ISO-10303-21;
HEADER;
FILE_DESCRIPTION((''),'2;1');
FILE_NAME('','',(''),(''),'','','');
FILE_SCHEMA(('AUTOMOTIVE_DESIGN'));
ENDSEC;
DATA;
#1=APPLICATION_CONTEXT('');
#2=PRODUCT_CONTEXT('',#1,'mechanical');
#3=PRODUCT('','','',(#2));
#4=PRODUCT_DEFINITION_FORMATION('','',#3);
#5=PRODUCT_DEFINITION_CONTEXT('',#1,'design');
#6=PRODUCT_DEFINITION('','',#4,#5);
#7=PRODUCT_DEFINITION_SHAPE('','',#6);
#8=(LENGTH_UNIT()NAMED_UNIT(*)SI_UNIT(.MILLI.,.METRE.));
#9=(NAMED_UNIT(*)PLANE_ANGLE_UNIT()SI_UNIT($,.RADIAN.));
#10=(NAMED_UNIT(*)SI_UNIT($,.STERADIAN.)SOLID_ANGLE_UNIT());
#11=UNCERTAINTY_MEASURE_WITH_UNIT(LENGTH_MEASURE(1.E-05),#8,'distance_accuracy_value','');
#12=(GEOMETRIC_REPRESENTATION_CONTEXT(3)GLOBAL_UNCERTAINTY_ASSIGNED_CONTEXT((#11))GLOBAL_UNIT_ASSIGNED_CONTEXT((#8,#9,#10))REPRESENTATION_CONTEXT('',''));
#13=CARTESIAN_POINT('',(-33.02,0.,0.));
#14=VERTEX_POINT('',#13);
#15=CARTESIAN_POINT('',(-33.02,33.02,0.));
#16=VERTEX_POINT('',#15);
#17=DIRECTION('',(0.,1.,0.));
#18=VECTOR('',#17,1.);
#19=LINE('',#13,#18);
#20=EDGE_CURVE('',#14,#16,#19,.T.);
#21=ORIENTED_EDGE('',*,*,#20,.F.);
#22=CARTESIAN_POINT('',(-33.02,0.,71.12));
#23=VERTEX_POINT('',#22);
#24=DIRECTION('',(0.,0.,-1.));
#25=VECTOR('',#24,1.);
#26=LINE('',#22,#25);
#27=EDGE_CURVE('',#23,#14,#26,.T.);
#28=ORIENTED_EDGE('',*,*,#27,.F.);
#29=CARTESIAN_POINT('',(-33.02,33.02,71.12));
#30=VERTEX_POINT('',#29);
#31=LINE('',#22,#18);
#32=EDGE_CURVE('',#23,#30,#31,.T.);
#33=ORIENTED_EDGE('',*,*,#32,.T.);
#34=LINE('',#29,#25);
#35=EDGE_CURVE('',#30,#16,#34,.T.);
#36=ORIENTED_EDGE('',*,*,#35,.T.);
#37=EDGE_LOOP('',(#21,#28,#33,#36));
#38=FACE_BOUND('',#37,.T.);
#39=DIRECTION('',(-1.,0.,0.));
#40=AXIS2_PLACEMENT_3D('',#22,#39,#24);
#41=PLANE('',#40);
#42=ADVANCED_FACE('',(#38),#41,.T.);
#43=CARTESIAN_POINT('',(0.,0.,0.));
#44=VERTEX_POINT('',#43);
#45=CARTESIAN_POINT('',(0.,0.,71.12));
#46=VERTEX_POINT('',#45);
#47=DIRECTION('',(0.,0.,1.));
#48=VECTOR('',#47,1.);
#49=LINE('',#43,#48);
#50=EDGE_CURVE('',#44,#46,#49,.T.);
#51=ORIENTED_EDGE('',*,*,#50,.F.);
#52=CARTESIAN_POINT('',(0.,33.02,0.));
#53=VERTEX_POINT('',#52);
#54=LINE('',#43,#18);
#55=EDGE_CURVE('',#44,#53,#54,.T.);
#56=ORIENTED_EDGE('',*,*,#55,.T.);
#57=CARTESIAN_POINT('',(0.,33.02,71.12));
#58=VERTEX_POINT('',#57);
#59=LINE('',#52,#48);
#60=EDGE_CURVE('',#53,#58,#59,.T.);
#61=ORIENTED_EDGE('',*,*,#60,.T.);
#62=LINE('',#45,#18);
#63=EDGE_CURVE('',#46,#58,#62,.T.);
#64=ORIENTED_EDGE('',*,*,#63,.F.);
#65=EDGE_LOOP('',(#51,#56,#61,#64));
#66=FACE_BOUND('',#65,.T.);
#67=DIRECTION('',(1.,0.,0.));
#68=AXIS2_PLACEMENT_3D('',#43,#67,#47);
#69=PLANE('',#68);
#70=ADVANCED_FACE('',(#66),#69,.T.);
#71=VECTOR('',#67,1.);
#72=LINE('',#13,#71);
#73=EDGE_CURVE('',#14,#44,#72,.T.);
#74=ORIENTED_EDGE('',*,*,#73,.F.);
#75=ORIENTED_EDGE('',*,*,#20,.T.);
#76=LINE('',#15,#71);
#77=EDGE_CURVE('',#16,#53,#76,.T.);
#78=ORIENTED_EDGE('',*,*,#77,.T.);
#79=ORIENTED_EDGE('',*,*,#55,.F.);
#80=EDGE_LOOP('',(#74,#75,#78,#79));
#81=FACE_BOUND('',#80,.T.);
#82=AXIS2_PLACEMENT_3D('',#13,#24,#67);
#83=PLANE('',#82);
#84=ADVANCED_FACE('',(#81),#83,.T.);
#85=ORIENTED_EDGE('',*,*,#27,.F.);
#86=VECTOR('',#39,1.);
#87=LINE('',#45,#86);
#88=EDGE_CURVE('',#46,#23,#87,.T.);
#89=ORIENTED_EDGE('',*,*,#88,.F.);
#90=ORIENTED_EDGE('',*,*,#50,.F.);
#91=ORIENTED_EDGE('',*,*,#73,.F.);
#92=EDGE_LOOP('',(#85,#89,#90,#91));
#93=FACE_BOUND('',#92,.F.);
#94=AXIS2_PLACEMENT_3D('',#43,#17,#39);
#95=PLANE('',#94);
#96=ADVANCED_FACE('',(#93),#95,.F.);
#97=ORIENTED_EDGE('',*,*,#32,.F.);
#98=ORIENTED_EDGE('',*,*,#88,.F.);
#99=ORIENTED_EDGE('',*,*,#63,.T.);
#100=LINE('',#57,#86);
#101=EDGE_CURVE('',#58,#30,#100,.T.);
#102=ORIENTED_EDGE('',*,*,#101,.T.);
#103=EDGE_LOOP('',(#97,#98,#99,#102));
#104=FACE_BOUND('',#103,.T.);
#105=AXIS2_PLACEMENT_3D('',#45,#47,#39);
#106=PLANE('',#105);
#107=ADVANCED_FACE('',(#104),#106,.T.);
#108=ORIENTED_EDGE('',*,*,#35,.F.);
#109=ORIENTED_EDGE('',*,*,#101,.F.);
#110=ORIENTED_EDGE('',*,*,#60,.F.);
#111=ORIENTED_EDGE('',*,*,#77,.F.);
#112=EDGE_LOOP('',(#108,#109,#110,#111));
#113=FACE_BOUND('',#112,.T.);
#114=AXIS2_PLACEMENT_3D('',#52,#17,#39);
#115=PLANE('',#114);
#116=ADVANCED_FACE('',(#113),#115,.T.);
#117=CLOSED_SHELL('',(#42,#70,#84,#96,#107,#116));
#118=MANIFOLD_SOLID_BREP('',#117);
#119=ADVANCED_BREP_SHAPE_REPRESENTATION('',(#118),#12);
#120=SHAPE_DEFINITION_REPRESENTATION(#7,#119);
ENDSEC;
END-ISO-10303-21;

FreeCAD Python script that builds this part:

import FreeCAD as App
import Part
import Sketcher
Q = App.Units.Quantity

doc = App.newDocument("Part")
params = doc.addObject("Spreadsheet::Sheet", "Params")
for row, (alias, value) in enumerate([
    ("sketch1_width", "1.3 in"),
    ("sketch1_height", "2.8 in"),
    ("pad1_length", "1.3 in"),
], start=1):
    params.set(f"A{row}", alias)
    params.set(f"B{row}", "=" + value)
    params.setAlias(f"B{row}", alias)

body = doc.addObject("PartDesign::Body", "Body")

# Sketch on XZ plane
sketch1 = body.newObject("Sketcher::SketchObject", "Sketch")
sketch1.AttachmentSupport = (doc.getObject("XZ_Plane"), [""])
sketch1.MapMode = "FlatFace"
sketch1.addGeometry([
    Part.LineSegment(App.Vector(0, 71, 0), App.Vector(0, 0, 0)),
    Part.LineSegment(App.Vector(0, 0, 0), App.Vector(-33, 0, 0)),
    Part.LineSegment(App.Vector(-33, 0, 0), App.Vector(-33, 71, 0)),
    Part.LineSegment(App.Vector(-33, 71, 0), App.Vector(0, 71, 0)),
], False)
sketch1.addConstraint([
    Sketcher.Constraint("Coincident", 0, 2, 1, 1),
    Sketcher.Constraint("Coincident", 1, 2, 2, 1),
    Sketcher.Constraint("Coincident", 2, 2, 3, 1),
    Sketcher.Constraint("Coincident", 3, 2, 0, 1),
    Sketcher.Constraint("Vertical", 0),
    Sketcher.Constraint("Horizontal", 1),
    Sketcher.Constraint("Vertical", 2),
    Sketcher.Constraint("Horizontal", 3),
    Sketcher.Constraint("Coincident", 0, 2, -1, 1),
    Sketcher.Constraint("DistanceX", 1, 2, 1, 1, Q("1.3 in")),
    Sketcher.Constraint("DistanceY", 0, 2, 0, 1, Q("2.8 in")),
])
sketch1.setExpression("Constraints[9]", "Params.sketch1_width")
sketch1.setExpression("Constraints[10]", "Params.sketch1_height")
pad1 = body.newObject("PartDesign::Pad", "Pad")
pad1.Profile = sketch1
pad1.setExpression("Length", "Params.pad1_length")
pad1.Reversed = True

doc.recompute()
